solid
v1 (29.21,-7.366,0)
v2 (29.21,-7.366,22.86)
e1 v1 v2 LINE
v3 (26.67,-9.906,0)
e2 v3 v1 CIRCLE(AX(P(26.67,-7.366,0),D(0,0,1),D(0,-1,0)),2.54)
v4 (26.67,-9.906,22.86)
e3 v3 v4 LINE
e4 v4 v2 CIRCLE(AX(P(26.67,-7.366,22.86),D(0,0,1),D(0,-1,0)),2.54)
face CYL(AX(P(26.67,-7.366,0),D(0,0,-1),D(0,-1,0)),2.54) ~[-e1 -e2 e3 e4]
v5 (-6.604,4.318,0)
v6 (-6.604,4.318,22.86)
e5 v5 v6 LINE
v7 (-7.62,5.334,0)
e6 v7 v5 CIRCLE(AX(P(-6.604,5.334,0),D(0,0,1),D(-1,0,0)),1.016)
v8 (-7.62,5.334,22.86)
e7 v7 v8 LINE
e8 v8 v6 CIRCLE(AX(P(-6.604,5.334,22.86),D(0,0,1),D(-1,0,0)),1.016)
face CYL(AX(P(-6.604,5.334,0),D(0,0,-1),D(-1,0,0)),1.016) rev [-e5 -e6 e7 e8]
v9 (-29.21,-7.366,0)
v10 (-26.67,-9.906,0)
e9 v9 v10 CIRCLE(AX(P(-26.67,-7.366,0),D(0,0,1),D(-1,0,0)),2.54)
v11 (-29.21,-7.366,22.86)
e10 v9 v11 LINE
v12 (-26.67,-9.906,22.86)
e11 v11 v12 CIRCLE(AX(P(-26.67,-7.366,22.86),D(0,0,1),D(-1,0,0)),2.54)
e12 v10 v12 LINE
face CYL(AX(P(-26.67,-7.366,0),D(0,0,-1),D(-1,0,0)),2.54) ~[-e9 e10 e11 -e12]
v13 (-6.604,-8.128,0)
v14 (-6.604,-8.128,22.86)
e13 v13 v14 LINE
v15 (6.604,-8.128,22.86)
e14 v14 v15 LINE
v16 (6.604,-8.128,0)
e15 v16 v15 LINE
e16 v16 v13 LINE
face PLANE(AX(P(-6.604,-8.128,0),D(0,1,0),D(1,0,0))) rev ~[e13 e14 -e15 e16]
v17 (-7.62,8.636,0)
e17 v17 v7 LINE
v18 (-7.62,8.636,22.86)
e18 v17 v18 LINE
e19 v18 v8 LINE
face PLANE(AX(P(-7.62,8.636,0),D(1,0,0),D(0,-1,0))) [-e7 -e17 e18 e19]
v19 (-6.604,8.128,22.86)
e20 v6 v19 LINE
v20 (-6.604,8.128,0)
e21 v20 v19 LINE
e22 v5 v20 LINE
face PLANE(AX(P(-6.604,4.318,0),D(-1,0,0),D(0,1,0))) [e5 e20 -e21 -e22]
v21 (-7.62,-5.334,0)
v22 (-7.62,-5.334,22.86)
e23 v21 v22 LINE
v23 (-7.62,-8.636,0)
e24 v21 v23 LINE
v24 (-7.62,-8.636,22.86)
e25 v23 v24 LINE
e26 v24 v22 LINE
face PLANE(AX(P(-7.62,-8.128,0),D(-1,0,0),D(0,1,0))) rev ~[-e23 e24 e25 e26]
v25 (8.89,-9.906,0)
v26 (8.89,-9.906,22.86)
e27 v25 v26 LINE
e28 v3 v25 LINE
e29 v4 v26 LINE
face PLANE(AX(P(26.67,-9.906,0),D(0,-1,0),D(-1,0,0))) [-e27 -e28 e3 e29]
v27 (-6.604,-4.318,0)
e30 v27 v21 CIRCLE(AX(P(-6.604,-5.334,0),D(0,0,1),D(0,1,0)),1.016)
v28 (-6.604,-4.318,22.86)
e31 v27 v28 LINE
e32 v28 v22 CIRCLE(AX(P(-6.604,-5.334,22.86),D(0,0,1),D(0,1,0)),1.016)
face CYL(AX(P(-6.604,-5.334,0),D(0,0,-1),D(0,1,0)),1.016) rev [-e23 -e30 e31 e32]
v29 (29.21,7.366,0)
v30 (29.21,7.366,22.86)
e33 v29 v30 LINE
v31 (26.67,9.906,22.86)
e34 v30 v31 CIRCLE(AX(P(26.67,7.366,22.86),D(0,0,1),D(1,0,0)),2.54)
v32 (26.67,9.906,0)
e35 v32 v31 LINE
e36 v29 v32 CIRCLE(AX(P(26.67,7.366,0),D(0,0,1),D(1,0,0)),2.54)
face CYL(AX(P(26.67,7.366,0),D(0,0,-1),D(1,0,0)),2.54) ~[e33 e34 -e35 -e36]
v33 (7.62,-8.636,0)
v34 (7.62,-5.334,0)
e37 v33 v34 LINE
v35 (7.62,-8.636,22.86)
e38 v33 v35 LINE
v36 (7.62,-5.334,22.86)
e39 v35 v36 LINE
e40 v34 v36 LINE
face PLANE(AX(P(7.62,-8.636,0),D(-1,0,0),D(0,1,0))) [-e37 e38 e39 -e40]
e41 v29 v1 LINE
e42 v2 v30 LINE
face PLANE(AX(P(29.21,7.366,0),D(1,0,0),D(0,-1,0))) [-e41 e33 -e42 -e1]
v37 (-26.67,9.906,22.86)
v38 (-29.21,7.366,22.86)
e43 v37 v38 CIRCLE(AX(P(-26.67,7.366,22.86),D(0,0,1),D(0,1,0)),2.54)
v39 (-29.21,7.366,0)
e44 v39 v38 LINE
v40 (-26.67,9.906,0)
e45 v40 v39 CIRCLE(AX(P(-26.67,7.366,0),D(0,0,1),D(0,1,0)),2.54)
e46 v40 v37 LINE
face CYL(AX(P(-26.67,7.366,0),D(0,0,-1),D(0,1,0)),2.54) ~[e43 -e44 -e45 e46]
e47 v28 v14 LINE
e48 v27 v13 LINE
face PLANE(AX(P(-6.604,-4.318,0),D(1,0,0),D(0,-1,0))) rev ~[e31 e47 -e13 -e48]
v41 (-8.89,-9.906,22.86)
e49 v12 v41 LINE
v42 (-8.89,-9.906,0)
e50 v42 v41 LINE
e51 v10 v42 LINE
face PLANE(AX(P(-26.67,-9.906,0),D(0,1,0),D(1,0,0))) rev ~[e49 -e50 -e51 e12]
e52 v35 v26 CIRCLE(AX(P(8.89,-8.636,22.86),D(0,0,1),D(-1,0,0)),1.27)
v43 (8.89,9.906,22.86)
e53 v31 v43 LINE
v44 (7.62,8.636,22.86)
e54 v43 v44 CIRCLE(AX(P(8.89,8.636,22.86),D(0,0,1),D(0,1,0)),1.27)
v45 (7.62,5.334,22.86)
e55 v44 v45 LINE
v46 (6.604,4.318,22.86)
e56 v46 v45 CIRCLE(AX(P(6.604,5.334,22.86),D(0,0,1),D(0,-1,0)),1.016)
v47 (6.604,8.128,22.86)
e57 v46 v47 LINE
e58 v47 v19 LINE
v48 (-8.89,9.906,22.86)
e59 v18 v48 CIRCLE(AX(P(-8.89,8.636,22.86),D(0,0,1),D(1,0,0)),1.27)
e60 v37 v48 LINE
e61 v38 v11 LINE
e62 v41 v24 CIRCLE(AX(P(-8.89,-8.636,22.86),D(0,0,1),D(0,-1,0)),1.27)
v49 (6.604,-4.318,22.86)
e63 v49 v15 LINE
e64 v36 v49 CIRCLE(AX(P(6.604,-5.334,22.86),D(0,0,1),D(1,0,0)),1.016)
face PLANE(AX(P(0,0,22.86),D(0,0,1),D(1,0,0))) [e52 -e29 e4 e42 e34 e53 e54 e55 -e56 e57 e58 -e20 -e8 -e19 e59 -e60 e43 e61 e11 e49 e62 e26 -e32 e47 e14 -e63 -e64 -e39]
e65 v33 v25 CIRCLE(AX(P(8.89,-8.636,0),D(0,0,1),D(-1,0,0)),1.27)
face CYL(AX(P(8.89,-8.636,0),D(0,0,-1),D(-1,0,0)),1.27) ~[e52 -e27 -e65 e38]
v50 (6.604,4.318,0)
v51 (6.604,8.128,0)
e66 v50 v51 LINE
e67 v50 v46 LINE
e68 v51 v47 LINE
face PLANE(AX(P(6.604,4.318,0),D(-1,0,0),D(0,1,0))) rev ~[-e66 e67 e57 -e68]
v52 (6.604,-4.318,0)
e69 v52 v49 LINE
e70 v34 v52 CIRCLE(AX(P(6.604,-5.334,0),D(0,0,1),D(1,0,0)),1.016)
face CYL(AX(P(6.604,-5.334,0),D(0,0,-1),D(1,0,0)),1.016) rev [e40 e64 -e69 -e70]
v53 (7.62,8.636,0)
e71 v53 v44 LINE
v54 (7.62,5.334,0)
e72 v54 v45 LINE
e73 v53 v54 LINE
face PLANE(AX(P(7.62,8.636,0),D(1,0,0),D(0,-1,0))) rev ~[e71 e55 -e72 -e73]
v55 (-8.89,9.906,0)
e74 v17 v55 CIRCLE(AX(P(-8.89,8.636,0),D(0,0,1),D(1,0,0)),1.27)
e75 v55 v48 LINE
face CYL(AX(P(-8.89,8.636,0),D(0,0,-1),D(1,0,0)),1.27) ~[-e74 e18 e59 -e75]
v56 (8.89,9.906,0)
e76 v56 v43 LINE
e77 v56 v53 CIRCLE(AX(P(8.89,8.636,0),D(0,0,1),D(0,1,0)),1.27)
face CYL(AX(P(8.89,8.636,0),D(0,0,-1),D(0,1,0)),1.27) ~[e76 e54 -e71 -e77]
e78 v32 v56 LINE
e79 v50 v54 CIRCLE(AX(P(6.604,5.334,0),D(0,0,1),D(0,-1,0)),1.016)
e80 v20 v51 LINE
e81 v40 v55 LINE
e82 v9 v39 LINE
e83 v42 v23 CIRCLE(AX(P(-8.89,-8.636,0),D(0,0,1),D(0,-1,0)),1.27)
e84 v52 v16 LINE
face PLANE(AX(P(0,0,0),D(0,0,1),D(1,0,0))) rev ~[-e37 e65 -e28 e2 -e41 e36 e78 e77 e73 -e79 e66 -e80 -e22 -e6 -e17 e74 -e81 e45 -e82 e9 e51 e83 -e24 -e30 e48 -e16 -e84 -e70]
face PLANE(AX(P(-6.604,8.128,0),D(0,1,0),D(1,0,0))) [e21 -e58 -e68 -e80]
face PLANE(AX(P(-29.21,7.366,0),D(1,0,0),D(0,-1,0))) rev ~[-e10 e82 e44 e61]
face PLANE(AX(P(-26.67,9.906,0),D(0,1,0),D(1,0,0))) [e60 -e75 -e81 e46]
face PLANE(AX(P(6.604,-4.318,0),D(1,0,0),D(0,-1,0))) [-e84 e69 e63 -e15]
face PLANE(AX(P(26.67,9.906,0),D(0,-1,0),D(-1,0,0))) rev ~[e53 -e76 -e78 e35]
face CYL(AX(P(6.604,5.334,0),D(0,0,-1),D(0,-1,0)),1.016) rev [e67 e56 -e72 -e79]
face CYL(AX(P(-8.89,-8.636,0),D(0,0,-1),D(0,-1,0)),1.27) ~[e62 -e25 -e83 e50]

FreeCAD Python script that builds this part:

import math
import FreeCAD as App
import Part
import Sketcher

V = App.Vector
Q = App.Units.Quantity

doc = App.newDocument("Part")
body = doc.addObject("PartDesign::Body", "Body")

# Sketch on XY plane
sketch1 = doc.addObject("Sketcher::SketchObject", "Sketch")
body.addObject(sketch1)
sketch1.AttachmentSupport = (doc.XY_Plane, [""])
sketch1.MapMode = "FlatFace"
sketch1.addGeometry(Part.LineSegment(V(-8.9, 9.9, 0), V(-26.7, 9.9, 0)), False)
sketch1.addGeometry(Part.ArcOfCircle(Part.Circle(V(-26.7, 7.4, 0), V(0, 0, 1), 2.5), math.radians(90), math.radians(180)), False)
sketch1.addGeometry(Part.LineSegment(V(-29.2, 7.4, 0), V(-29.2, -7.4, 0)), False)
sketch1.addGeometry(Part.ArcOfCircle(Part.Circle(V(-26.7, -7.4, 0), V(0, 0, 1), 2.5), math.radians(180), math.radians(270)), False)
sketch1.addGeometry(Part.LineSegment(V(-26.7, -9.9, 0), V(-8.9, -9.9, 0)), False)
sketch1.addGeometry(Part.ArcOfCircle(Part.Circle(V(-8.9, -8.6, 0), V(0, 0, 1), 1.3), math.radians(-90), math.radians(0)), False)
sketch1.addGeometry(Part.LineSegment(V(-7.6, -8.6, 0), V(-7.6, -5.3, 0)), False)
sketch1.addGeometry(Part.ArcOfCircle(Part.Circle(V(-6.6, -5.3, 0), V(0, 0, 1), 1), math.radians(90), math.radians(180)), False)
sketch1.addGeometry(Part.LineSegment(V(-6.6, -4.3, 0), V(-6.6, -8.1, 0)), False)
sketch1.addGeometry(Part.LineSegment(V(-6.6, -8.1, 0), V(6.6, -8.1, 0)), False)
sketch1.addGeometry(Part.LineSegment(V(6.6, -8.1, 0), V(6.6, -4.3, 0)), False)
sketch1.addGeometry(Part.ArcOfCircle(Part.Circle(V(6.6, -5.3, 0), V(0, 0, 1), 1), math.radians(0), math.radians(90)), False)
sketch1.addGeometry(Part.LineSegment(V(7.6, -5.3, 0), V(7.6, -8.6, 0)), False)
sketch1.addGeometry(Part.ArcOfCircle(Part.Circle(V(8.9, -8.6, 0), V(0, 0, 1), 1.3), math.radians(180), math.radians(270)), False)
sketch1.addGeometry(Part.LineSegment(V(8.9, -9.9, 0), V(26.7, -9.9, 0)), False)
sketch1.addGeometry(Part.ArcOfCircle(Part.Circle(V(26.7, -7.4, 0), V(0, 0, 1), 2.5), math.radians(-90), math.radians(0)), False)
sketch1.addGeometry(Part.LineSegment(V(29.2, -7.4, 0), V(29.2, 7.4, 0)), False)
sketch1.addGeometry(Part.ArcOfCircle(Part.Circle(V(26.7, 7.4, 0), V(0, 0, 1), 2.5), math.radians(0), math.radians(90)), False)
sketch1.addGeometry(Part.LineSegment(V(26.7, 9.9, 0), V(8.9, 9.9, 0)), False)
sketch1.addGeometry(Part.ArcOfCircle(Part.Circle(V(8.9, 8.6, 0), V(0, 0, 1), 1.3), math.radians(90), math.radians(180)), False)
sketch1.addGeometry(Part.LineSegment(V(7.6, 8.6, 0), V(7.6, 5.3, 0)), False)
sketch1.addGeometry(Part.ArcOfCircle(Part.Circle(V(6.6, 5.3, 0), V(0, 0, 1), 1), math.radians(-90), math.radians(0)), False)
sketch1.addGeometry(Part.LineSegment(V(6.6, 4.3, 0), V(6.6, 8.1, 0)), False)
sketch1.addGeometry(Part.LineSegment(V(6.6, 8.1, 0), V(-6.6, 8.1, 0)), False)
sketch1.addGeometry(Part.LineSegment(V(-6.6, 8.1, 0), V(-6.6, 4.3, 0)), False)
sketch1.addGeometry(Part.ArcOfCircle(Part.Circle(V(-6.6, 5.3, 0), V(0, 0, 1), 1), math.radians(180), math.radians(270)), False)
sketch1.addGeometry(Part.LineSegment(V(-7.6, 5.3, 0), V(-7.6, 8.6, 0)), False)
sketch1.addGeometry(Part.ArcOfCircle(Part.Circle(V(-8.9, 8.6, 0), V(0, 0, 1), 1.3), math.radians(0), math.radians(90)), False)
sketch1.addConstraint(Sketcher.Constraint("Tangent", 0, 2, 1, 1))
sketch1.addConstraint(Sketcher.Constraint("Tangent", 1, 2, 2, 1))
sketch1.addConstraint(Sketcher.Constraint("Tangent", 2, 2, 3, 1))
sketch1.addConstraint(Sketcher.Constraint("Tangent", 3, 2, 4, 1))
sketch1.addConstraint(Sketcher.Constraint("Tangent", 4, 2, 5, 1))
sketch1.addConstraint(Sketcher.Constraint("Tangent", 5, 2, 6, 1))
sketch1.addConstraint(Sketcher.Constraint("Tangent", 6, 2, 7, 2))
sketch1.addConstraint(Sketcher.Constraint("Coincident", 7, 1, 8, 1))
sketch1.addConstraint(Sketcher.Constraint("Coincident", 8, 2, 9, 1))
sketch1.addConstraint(Sketcher.Constraint("Coincident", 9, 2, 10, 1))
sketch1.addConstraint(Sketcher.Constraint("Coincident", 10, 2, 11, 2))
sketch1.addConstraint(Sketcher.Constraint("Tangent", 11, 1, 12, 1))
sketch1.addConstraint(Sketcher.Constraint("Tangent", 12, 2, 13, 1))
sketch1.addConstraint(Sketcher.Constraint("Tangent", 13, 2, 14, 1))
sketch1.addConstraint(Sketcher.Constraint("Tangent", 14, 2, 15, 1))
sketch1.addConstraint(Sketcher.Constraint("Tangent", 15, 2, 16, 1))
sketch1.addConstraint(Sketcher.Constraint("Tangent", 16, 2, 17, 1))
sketch1.addConstraint(Sketcher.Constraint("Tangent", 17, 2, 18, 1))
sketch1.addConstraint(Sketcher.Constraint("Tangent", 18, 2, 19, 1))
sketch1.addConstraint(Sketcher.Constraint("Tangent", 19, 2, 20, 1))
sketch1.addConstraint(Sketcher.Constraint("Tangent", 20, 2, 21, 2))
sketch1.addConstraint(Sketcher.Constraint("Coincident", 21, 1, 22, 1))
sketch1.addConstraint(Sketcher.Constraint("Coincident", 22, 2, 23, 1))
sketch1.addConstraint(Sketcher.Constraint("Coincident", 23, 2, 24, 1))
sketch1.addConstraint(Sketcher.Constraint("Coincident", 24, 2, 25, 2))
sketch1.addConstraint(Sketcher.Constraint("Tangent", 25, 1, 26, 1))
sketch1.addConstraint(Sketcher.Constraint("Tangent", 26, 2, 27, 1))
sketch1.addConstraint(Sketcher.Constraint("Tangent", 27, 2, 0, 1))
sketch1.addConstraint(Sketcher.Constraint("Horizontal", 0))
sketch1.addConstraint(Sketcher.Constraint("Vertical", 2))
sketch1.addConstraint(Sketcher.Constraint("Horizontal", 4))
sketch1.addConstraint(Sketcher.Constraint("Vertical", 6))
sketch1.addConstraint(Sketcher.Constraint("Vertical", 8))
sketch1.addConstraint(Sketcher.Constraint("Horizontal", 9))
sketch1.addConstraint(Sketcher.Constraint("Vertical", 10))
sketch1.addConstraint(Sketcher.Constraint("Vertical", 12))
sketch1.addConstraint(Sketcher.Constraint("Horizontal", 14))
sketch1.addConstraint(Sketcher.Constraint("Vertical", 16))
sketch1.addConstraint(Sketcher.Constraint("Horizontal", 18))
sketch1.addConstraint(Sketcher.Constraint("Vertical", 20))
sketch1.addConstraint(Sketcher.Constraint("Vertical", 22))
sketch1.addConstraint(Sketcher.Constraint("Horizontal", 23))
sketch1.addConstraint(Sketcher.Constraint("Vertical", 24))
sketch1.addConstraint(Sketcher.Constraint("Vertical", 26))
sketch1.addConstraint(Sketcher.Constraint("Equal", 1, 3))
sketch1.addConstraint(Sketcher.Constraint("Equal", 7, 11))
sketch1.addConstraint(Sketcher.Constraint("Equal", 5, 13))
sketch1.addConstraint(Sketcher.Constraint("Equal", 3, 15))
sketch1.addConstraint(Sketcher.Constraint("Equal", 15, 17))
sketch1.addConstraint(Sketcher.Constraint("Equal", 13, 19))
sketch1.addConstraint(Sketcher.Constraint("Equal", 11, 21))
sketch1.addConstraint(Sketcher.Constraint("Equal", 21, 25))
sketch1.addConstraint(Sketcher.Constraint("Equal", 19, 27))
sketch1.addConstraint(Sketcher.Constraint("Symmetric", 1, 3, 15, 3, -1, 1))
sketch1.addConstraint(Sketcher.Constraint("Symmetric", 5, 3, 19, 3, -1, 1))
sketch1.addConstraint(Sketcher.Constraint("Symmetric", 11, 3, 25, 3, -1, 1))
sketch1.addConstraint(Sketcher.Constraint("Symmetric", 7, 1, 21, 1, -1, 1))
sketch1.addConstraint(Sketcher.Constraint("Symmetric", 9, 2, 23, 2, -1, 1))
sketch1.addConstraint(Sketcher.Constraint("Symmetric", 7, 3, 11, 3, -2))
sketch1.addConstraint(Sketcher.Constraint("Horizontal", 5, 3, 13, 3))
sketch1.addConstraint(Sketcher.Constraint("Vertical", 25, 3, 7, 1))
sketch1.addConstraint(Sketcher.Constraint("Vertical", 21, 3, 9, 2))
sketch1.addConstraint(Sketcher.Constraint("Radius", 1, Q("0.1 in")))
sketch1.addConstraint(Sketcher.Constraint("Radius", 5, Q("0.05 in")))
sketch1.addConstraint(Sketcher.Constraint("Radius", 7, Q("0.04 in")))
sketch1.addConstraint(Sketcher.Constraint("DistanceX", 5, 2, -1, 1, Q("0.3 in")))
sketch1.addConstraint(Sketcher.Constraint("DistanceY", -1, 1, 0, 2, Q("0.39 in")))
sketch1.addConstraint(Sketcher.Constraint("DistanceX", 1, 2, -1, 1, Q("1.15 in")))
sketch1.addConstraint(Sketcher.Constraint("DistanceY", 8, 2, -1, 1, Q("0.32 in")))
sketch1.addConstraint(Sketcher.Constraint("DistanceY", 4, 2, 7, 1, Q("0.22 in")))
pad1 = doc.addObject("PartDesign::Pad", "Pad")
body.addObject(pad1)
pad1.Profile = sketch1
pad1.Length = Q("0.9 in")

doc.recompute()
